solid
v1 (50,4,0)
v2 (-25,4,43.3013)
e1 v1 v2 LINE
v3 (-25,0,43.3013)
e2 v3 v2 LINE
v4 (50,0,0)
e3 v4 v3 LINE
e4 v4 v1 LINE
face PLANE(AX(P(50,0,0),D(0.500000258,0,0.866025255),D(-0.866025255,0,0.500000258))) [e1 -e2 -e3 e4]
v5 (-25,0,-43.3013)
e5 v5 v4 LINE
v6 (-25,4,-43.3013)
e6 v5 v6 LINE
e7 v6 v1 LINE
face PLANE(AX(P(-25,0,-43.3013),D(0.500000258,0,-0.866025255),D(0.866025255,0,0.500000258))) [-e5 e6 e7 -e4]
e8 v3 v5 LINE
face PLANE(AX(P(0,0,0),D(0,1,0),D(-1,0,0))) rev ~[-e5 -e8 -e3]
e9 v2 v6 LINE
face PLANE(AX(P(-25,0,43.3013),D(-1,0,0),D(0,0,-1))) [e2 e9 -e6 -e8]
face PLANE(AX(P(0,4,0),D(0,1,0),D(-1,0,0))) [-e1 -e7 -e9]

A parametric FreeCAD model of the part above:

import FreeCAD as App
import Part
import Sketcher
Q = App.Units.Quantity

doc = App.newDocument("Part")
body = doc.addObject("PartDesign::Body", "Body")

sketch1 = body.newObject("Sketcher::SketchObject", "Sketch")
sketch1.AttachmentSupport = (doc.getObject("XZ_Plane"), [""])
sketch1.MapMode = "FlatFace"
sketch1.addGeometry([
    Part.LineSegment(App.Vector(50, 0, 0), App.Vector(-25, -43, 0)),
    Part.LineSegment(App.Vector(-25, -43, 0), App.Vector(-25, 43, 0)),
    Part.LineSegment(App.Vector(-25, 43, 0), App.Vector(50, 0, 0)),
], False)
sketch1.addConstraint([
    Sketcher.Constraint("Coincident", 0, 2, 1, 1),
    Sketcher.Constraint("Coincident", 1, 2, 2, 1),
    Sketcher.Constraint("Coincident", 2, 2, 0, 1),
    Sketcher.Constraint("Vertical", 1),
    Sketcher.Constraint("PointOnObject", 2, 2, -1),
    Sketcher.Constraint("Equal", 0, 2),
    Sketcher.Constraint("Angle", 0, Q("-150 deg")),
    Sketcher.Constraint("DistanceX", 0, 2, -1, 1, 25.0),
    Sketcher.Constraint("DistanceX", -1, 1, 2, 2, 50.0),
])
pad1 = body.newObject("PartDesign::Pad", "Pad")
pad1.Profile = sketch1
pad1.Length = 4
pad1.Reversed = True

doc.recompute()
